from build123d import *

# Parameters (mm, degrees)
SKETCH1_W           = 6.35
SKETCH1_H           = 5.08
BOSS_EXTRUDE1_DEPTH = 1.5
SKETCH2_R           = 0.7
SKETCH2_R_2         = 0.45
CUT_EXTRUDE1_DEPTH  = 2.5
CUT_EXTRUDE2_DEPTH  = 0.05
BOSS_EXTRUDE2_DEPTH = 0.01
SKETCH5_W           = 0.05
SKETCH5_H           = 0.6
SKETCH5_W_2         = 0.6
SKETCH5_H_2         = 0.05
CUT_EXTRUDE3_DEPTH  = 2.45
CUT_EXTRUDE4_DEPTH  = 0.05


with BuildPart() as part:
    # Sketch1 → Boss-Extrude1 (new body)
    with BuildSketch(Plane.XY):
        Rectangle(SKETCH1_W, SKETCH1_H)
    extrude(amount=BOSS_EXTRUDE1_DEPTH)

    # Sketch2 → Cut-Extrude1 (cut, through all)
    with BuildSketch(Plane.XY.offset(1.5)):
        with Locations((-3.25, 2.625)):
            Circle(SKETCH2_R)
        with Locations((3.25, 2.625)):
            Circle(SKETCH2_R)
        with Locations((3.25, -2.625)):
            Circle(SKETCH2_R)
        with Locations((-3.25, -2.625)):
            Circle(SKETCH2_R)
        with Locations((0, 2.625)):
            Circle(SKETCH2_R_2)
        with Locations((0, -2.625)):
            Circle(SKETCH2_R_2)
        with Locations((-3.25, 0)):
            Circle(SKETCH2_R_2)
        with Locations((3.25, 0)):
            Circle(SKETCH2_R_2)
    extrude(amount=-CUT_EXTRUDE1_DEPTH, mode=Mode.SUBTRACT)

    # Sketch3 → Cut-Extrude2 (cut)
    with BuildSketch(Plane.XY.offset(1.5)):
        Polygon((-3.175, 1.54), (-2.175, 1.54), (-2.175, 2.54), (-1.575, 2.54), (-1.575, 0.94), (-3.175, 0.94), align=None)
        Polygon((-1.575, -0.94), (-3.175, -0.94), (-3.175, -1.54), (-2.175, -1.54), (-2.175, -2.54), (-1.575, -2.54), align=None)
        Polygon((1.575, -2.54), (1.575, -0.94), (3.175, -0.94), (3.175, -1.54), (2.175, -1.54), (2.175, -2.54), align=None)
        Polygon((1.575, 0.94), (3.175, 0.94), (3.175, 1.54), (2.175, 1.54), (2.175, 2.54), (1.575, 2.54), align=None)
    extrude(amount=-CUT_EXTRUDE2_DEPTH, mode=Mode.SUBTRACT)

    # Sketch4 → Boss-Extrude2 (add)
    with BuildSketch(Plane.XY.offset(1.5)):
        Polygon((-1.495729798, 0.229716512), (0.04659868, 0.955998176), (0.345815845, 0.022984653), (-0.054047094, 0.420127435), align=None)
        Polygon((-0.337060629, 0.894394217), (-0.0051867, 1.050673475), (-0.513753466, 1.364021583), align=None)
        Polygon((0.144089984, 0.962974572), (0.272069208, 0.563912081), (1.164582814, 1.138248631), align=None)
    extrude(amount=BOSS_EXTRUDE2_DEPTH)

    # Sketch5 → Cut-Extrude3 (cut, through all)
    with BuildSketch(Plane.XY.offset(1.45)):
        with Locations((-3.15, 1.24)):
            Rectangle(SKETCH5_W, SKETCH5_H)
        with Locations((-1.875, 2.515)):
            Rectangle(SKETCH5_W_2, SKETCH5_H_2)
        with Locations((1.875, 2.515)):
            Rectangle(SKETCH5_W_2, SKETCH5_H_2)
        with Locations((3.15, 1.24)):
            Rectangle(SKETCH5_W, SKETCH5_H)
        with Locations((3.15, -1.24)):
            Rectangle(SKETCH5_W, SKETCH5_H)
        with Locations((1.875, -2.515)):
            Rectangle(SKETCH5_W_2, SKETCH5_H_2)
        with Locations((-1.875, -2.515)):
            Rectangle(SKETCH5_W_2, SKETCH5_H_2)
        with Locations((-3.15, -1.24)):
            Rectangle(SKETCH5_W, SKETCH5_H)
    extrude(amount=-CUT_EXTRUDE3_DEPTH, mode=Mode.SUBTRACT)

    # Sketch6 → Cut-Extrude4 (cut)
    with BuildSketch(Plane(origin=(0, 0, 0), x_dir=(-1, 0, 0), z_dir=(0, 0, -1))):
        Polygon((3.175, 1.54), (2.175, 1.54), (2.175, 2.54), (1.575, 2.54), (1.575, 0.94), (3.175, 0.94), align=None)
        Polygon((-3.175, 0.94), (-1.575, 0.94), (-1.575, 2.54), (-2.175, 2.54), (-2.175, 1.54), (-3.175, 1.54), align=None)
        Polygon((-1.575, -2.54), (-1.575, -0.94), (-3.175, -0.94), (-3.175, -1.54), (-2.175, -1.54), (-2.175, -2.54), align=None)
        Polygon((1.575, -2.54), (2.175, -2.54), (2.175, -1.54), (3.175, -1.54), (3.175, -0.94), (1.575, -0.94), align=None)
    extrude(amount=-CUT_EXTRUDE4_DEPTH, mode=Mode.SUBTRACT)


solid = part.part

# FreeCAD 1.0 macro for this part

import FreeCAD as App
import Part
import Sketcher

V = App.Vector

doc = App.newDocument("Part")
body = doc.addObject("PartDesign::Body", "Body")

# Sketch on XY plane
sketch1 = body.newObject("Sketcher::SketchObject", "Sketch")
sketch1.AttachmentSupport = (doc.getObject("XY_Plane"), [""])
sketch1.MapMode = "FlatFace"
sketch1.addGeometry([
    Part.LineSegment(V(-3, 3, 0), V(-3, -3, 0)),
    Part.LineSegment(V(-3, -3, 0), V(3, -3, 0)),
    Part.LineSegment(V(3, -3, 0), V(3, 3, 0)),
    Part.LineSegment(V(3, 3, 0), V(-3, 3, 0)),
], False)
sketch1.addConstraint([
    Sketcher.Constraint("Coincident", 0, 2, 1, 1),
    Sketcher.Constraint("Coincident", 1, 2, 2, 1),
    Sketcher.Constraint("Coincident", 2, 2, 3, 1),
    Sketcher.Constraint("Coincident", 3, 2, 0, 1),
    Sketcher.Constraint("Vertical", 0),
    Sketcher.Constraint("Horizontal", 1),
    Sketcher.Constraint("Vertical", 2),
    Sketcher.Constraint("Horizontal", 3),
    Sketcher.Constraint("Symmetric", 0, 2, 2, 2, -1, 1),
    Sketcher.Constraint("DistanceX", 1, 1, 1, 2, 6.35),
    Sketcher.Constraint("DistanceY", 0, 2, 0, 1, 5.08),
])
pad1 = body.newObject("PartDesign::Pad", "Pad")
pad1.Profile = sketch1
pad1.Length = 1.5

# Sketch on XY plane
sketch2 = body.newObject("Sketcher::SketchObject", "Sketch001")
sketch2.AttachmentSupport = (doc.getObject("XY_Plane"), [""])
sketch2.MapMode = "FlatFace"
sketch2.AttachmentOffset = App.Placement(V(0, 0, 1.5), App.Rotation())
sketch2.addGeometry([
    Part.Circle(V(-3.25, 2.62, 0), V(0, 0, 1), 0.7),  # 0
    Part.Circle(V(3.25, 2.62, 0), V(0, 0, 1), 0.7),  # 1
    Part.Circle(V(3.25, -2.62, 0), V(0, 0, 1), 0.7),  # 2
    Part.Circle(V(-3.25, -2.62, 0), V(0, 0, 1), 0.7),  # 3
    Part.Circle(V(0, 2.62, 0), V(0, 0, 1), 0.45),  # 4
    Part.Circle(V(0, -2.62, 0), V(0, 0, 1), 0.45),  # 5
    Part.Circle(V(-3.25, 0, 0), V(0, 0, 1), 0.45),  # 6
    Part.Circle(V(3.25, 0, 0), V(0, 0, 1), 0.45),  # 7
], False)
sketch2.addConstraint([
    Sketcher.Constraint("Equal", 0, 1),
    Sketcher.Constraint("Equal", 1, 2),
    Sketcher.Constraint("Equal", 2, 3),
    Sketcher.Constraint("Equal", 4, 5),
    Sketcher.Constraint("Equal", 5, 6),
    Sketcher.Constraint("Equal", 6, 7),
    Sketcher.Constraint("Symmetric", 0, 3, 2, 3, -1, 1),
    Sketcher.Constraint("Symmetric", 1, 3, 3, 3, -1, 1),
    Sketcher.Constraint("Symmetric", 4, 3, 5, 3, -1, 1),
    Sketcher.Constraint("Symmetric", 6, 3, 7, 3, -1, 1),
    Sketcher.Constraint("Symmetric", 0, 3, 1, 3, -2),
    Sketcher.Constraint("PointOnObject", 4, 3, -2),
    Sketcher.Constraint("PointOnObject", 6, 3, -1),
    Sketcher.Constraint("Horizontal", 1, 3, 4, 3),
    Sketcher.Constraint("Vertical", 3, 3, 6, 3),
    Sketcher.Constraint("Diameter", 0, 1.4),
    Sketcher.Constraint("Diameter", 4, 0.9),
    Sketcher.Constraint("DistanceX", 0, 3, 1, 3, 6.5),
    Sketcher.Constraint("DistanceY", 2, 3, 1, 3, 5.25),
])
pocket1 = body.newObject("PartDesign::Pocket", "Pocket")
pocket1.Profile = sketch2
pocket1.Type = "ThroughAll"

# Sketch on XY plane
sketch3 = body.newObject("Sketcher::SketchObject", "Sketch002")
sketch3.AttachmentSupport = (doc.getObject("XY_Plane"), [""])
sketch3.MapMode = "FlatFace"
sketch3.AttachmentOffset = App.Placement(V(0, 0, 1.5), App.Rotation())
sketch3.addGeometry([
    Part.LineSegment(V(-2.2, 1.5, 0), V(-3.2, 1.5, 0)),  # 0
    Part.LineSegment(V(-3.2, 1.5, 0), V(-3.2, 0.9, 0)),  # 1
    Part.LineSegment(V(-3.2, 0.9, 0), V(-1.6, 0.9, 0)),  # 2
    Part.LineSegment(V(-1.6, 0.9, 0), V(-1.6, 2.5, 0)),  # 3
    Part.LineSegment(V(-1.6, 2.5, 0), V(-2.2, 2.5, 0)),  # 4
    Part.LineSegment(V(-2.2, 2.5, 0), V(-2.2, 1.5, 0)),  # 5
    Part.LineSegment(V(-1.6, -0.9, 0), V(-3.2, -0.9, 0)),  # 6
    Part.LineSegment(V(-3.2, -0.9, 0), V(-3.2, -1.5, 0)),  # 7
    Part.LineSegment(V(-3.2, -1.5, 0), V(-2.2, -1.5, 0)),  # 8
    Part.LineSegment(V(-2.2, -1.5, 0), V(-2.2, -2.5, 0)),  # 9
    Part.LineSegment(V(-2.2, -2.5, 0), V(-1.6, -2.5, 0)),  # 10
    Part.LineSegment(V(-1.6, -2.5, 0), V(-1.6, -0.9, 0)),  # 11
    Part.LineSegment(V(1.6, -0.9, 0), V(1.6, -2.5, 0)),  # 12
    Part.LineSegment(V(1.6, -2.5, 0), V(2.2, -2.5, 0)),  # 13
    Part.LineSegment(V(2.2, -2.5, 0), V(2.2, -1.5, 0)),  # 14
    Part.LineSegment(V(2.2, -1.5, 0), V(3.2, -1.5, 0)),  # 15
    Part.LineSegment(V(3.2, -1.5, 0), V(3.2, -0.9, 0)),  # 16
    Part.LineSegment(V(3.2, -0.9, 0), V(1.6, -0.9, 0)),  # 17
    Part.LineSegment(V(1.6, 0.9, 0), V(3.2, 0.9, 0)),  # 18
    Part.LineSegment(V(3.2, 0.9, 0), V(3.2, 1.5, 0)),  # 19
    Part.LineSegment(V(3.2, 1.5, 0), V(2.2, 1.5, 0)),  # 20
    Part.LineSegment(V(2.2, 1.5, 0), V(2.2, 2.5, 0)),  # 21
    Part.LineSegment(V(2.2, 2.5, 0), V(1.6, 2.5, 0)),  # 22
    Part.LineSegment(V(1.6, 2.5, 0), V(1.6, 0.9, 0)),  # 23
], False)
sketch3.addConstraint([
    Sketcher.Constraint("Coincident", 0, 2, 1, 1),
    Sketcher.Constraint("Coincident", 1, 2, 2, 1),
    Sketcher.Constraint("Coincident", 2, 2, 3, 1),
    Sketcher.Constraint("Coincident", 3, 2, 4, 1),
    Sketcher.Constraint("Coincident", 4, 2, 5, 1),
    Sketcher.Constraint("Coincident", 5, 2, 0, 1),
    Sketcher.Constraint("Coincident", 6, 2, 7, 1),
    Sketcher.Constraint("Coincident", 7, 2, 8, 1),
    Sketcher.Constraint("Coincident", 8, 2, 9, 1),
    Sketcher.Constraint("Coincident", 9, 2, 10, 1),
    Sketcher.Constraint("Coincident", 10, 2, 11, 1),
    Sketcher.Constraint("Coincident", 11, 2, 6, 1),
    Sketcher.Constraint("Coincident", 12, 2, 13, 1),
    Sketcher.Constraint("Coincident", 13, 2, 14, 1),
    Sketcher.Constraint("Coincident", 14, 2, 15, 1),
    Sketcher.Constraint("Coincident", 15, 2, 16, 1),
    Sketcher.Constraint("Coincident", 16, 2, 17, 1),
    Sketcher.Constraint("Coincident", 17, 2, 12, 1),
    Sketcher.Constraint("Coincident", 18, 2, 19, 1),
    Sketcher.Constraint("Coincident", 19, 2, 20, 1),
    Sketcher.Constraint("Coincident", 20, 2, 21, 1),
    Sketcher.Constraint("Coincident", 21, 2, 22, 1),
    Sketcher.Constraint("Coincident", 22, 2, 23, 1),
    Sketcher.Constraint("Coincident", 23, 2, 18, 1),
    Sketcher.Constraint("Horizontal", 0),
    Sketcher.Constraint("Vertical", 1),
    Sketcher.Constraint("Horizontal", 2),
    Sketcher.Constraint("Vertical", 3),
    Sketcher.Constraint("Horizontal", 4),
    Sketcher.Constraint("Vertical", 5),
    Sketcher.Constraint("Horizontal", 6),
    Sketcher.Constraint("Vertical", 7),
    Sketcher.Constraint("Horizontal", 8),
    Sketcher.Constraint("Vertical", 9),
    Sketcher.Constraint("Horizontal", 10),
    Sketcher.Constraint("Vertical", 11),
    Sketcher.Constraint("Vertical", 12),
    Sketcher.Constraint("Horizontal", 13),
    Sketcher.Constraint("Vertical", 14),
    Sketcher.Constraint("Horizontal", 15),
    Sketcher.Constraint("Vertical", 16),
    Sketcher.Constraint("Horizontal", 17),
    Sketcher.Constraint("Horizontal", 18),
    Sketcher.Constraint("Vertical", 19),
    Sketcher.Constraint("Horizontal", 20),
    Sketcher.Constraint("Vertical", 21),
    Sketcher.Constraint("Horizontal", 22),
    Sketcher.Constraint("Vertical", 23),
    Sketcher.Constraint("Symmetric", 3, 2, 12, 2, -1, 1),
    Sketcher.Constraint("Symmetric", 5, 2, 14, 2, -1, 1),
    Sketcher.Constraint("Symmetric", 1, 2, 16, 2, -1, 1),
    Sketcher.Constraint("Symmetric", 6, 2, 18, 2, -1, 1),
    Sketcher.Constraint("Symmetric", 8, 2, 20, 2, -1, 1),
    Sketcher.Constraint("Symmetric", 10, 2, 22, 2, -1, 1),
    Sketcher.Constraint("Symmetric", 10, 2, 12, 2, -2),
    Sketcher.Constraint("Symmetric", 8, 2, 14, 2, -2),
    Sketcher.Constraint("Symmetric", 6, 2, 16, 2, -2),
    Sketcher.Constraint("Equal", 22, 1),
    Sketcher.Constraint("Equal", 18, 3),
    Sketcher.Constraint("DistanceX", 0, 2, 0, 1, 1.0),
    Sketcher.Constraint("DistanceX", 2, 1, 2, 2, 1.6),
    Sketcher.Constraint("DistanceY", -1, 1, 0, 2, 1.54),
    Sketcher.Constraint("DistanceX", 10, 2, 12, 2, 3.15),
])
pocket2 = body.newObject("PartDesign::Pocket", "Pocket001")
pocket2.Profile = sketch3
pocket2.Length = 0.05

# Sketch on XY plane
sketch4 = body.newObject("Sketcher::SketchObject", "Sketch003")
sketch4.AttachmentSupport = (doc.getObject("XY_Plane"), [""])
sketch4.MapMode = "FlatFace"
sketch4.AttachmentOffset = App.Placement(V(0, 0, 1.5), App.Rotation())
sketch4.addGeometry([
    Part.LineSegment(V(0.05, 0.96, 0), V(-1.5, 0.23, 0)),  # 0
    Part.LineSegment(V(-1.5, 0.23, 0), V(-0.05, 0.42, 0)),  # 1
    Part.LineSegment(V(-0.05, 0.42, 0), V(0.35, 0.02, 0)),  # 2
    Part.LineSegment(V(0.35, 0.02, 0), V(0.05, 0.96, 0)),  # 3
    Part.LineSegment(V(-0.34, 0.89, 0), V(-0.01, 1.05, 0)),  # 4
    Part.LineSegment(V(-0.01, 1.05, 0), V(-0.51, 1.36, 0)),  # 5
    Part.LineSegment(V(-0.51, 1.36, 0), V(-0.34, 0.89, 0)),  # 6
    Part.LineSegment(V(0.14, 0.96, 0), V(0.27, 0.56, 0)),  # 7
    Part.LineSegment(V(0.27, 0.56, 0), V(1.16, 1.14, 0)),  # 8
    Part.LineSegment(V(1.16, 1.14, 0), V(0.14, 0.96, 0)),  # 9
], False)
sketch4.addConstraint([
    Sketcher.Constraint("Coincident", 0, 2, 1, 1),
    Sketcher.Constraint("Coincident", 1, 2, 2, 1),
    Sketcher.Constraint("Coincident", 2, 2, 3, 1),
    Sketcher.Constraint("Coincident", 3, 2, 0, 1),
    Sketcher.Constraint("Coincident", 4, 2, 5, 1),
    Sketcher.Constraint("Coincident", 5, 2, 6, 1),
    Sketcher.Constraint("Coincident", 6, 2, 4, 1),
    Sketcher.Constraint("Coincident", 7, 2, 8, 1),
    Sketcher.Constraint("Coincident", 8, 2, 9, 1),
    Sketcher.Constraint("Coincident", 9, 2, 7, 1),
    Sketcher.Constraint("Parallel", 0, 4),
    Sketcher.Constraint("Parallel", 3, 7),
    Sketcher.Constraint("DistanceY", -1, 1, 3, 2, 0.955998),
    Sketcher.Constraint("DistanceX", -1, 1, 3, 2, 0.046599),
    Sketcher.Constraint("DistanceY", 9, 2, 4, 2, 0.087699),
    Sketcher.Constraint("Distance", 2, 0.563571),
    Sketcher.Constraint("Distance", 3, 0.979819),
    Sketcher.Constraint("Distance", 4, 0.366829),
    Sketcher.Constraint("Distance", 5, 0.59735),
    Sketcher.Constraint("Distance", 7, 0.419082),
    Sketcher.Constraint("Distance", 8, 1.06134),
    Sketcher.Constraint("DistanceX", 0, 2, -1, 1, 1.49573),
    Sketcher.Constraint("DistanceY", -1, 1, 5, 2, 1.364022),
    Sketcher.Constraint("DistanceX", 6, 2, -1, 1, 0.337061),
    Sketcher.Constraint("DistanceX", -1, 1, 7, 2, 0.272069),
    Sketcher.Constraint("DistanceY", -1, 1, 8, 2, 1.138249),
    Sketcher.Constraint("DistanceX", -1, 1, 9, 2, 0.14409),
    Sketcher.Constraint("DistanceY", 0, 2, 1, 2, 0.190411),
    Sketcher.Constraint("DistanceY", 2, 2, 0, 2, 0.206732),
    Sketcher.Constraint("DistanceY", 2, 2, 4, 2, 1.027689),
])
pad2 = body.newObject("PartDesign::Pad", "Pad001")
pad2.Profile = sketch4
pad2.Length = 0.01

# Sketch on XY plane
sketch5 = body.newObject("Sketcher::SketchObject", "Sketch004")
sketch5.AttachmentSupport = (doc.getObject("XY_Plane"), [""])
sketch5.MapMode = "FlatFace"
sketch5.AttachmentOffset = App.Placement(V(0, 0, 1.45), App.Rotation())
sketch5.addGeometry([
    Part.LineSegment(V(-3.175, 1.54, 0), V(-3.175, 0.94, 0)),  # 0
    Part.LineSegment(V(-3.175, 0.94, 0), V(-3.125, 0.94, 0)),  # 1
    Part.LineSegment(V(-3.125, 0.94, 0), V(-3.125, 1.54, 0)),  # 2
    Part.LineSegment(V(-3.125, 1.54, 0), V(-3.175, 1.54, 0)),  # 3
    Part.LineSegment(V(-2.175, 2.54, 0), V(-2.175, 2.49, 0)),  # 4
    Part.LineSegment(V(-2.175, 2.49, 0), V(-1.575, 2.49, 0)),  # 5
    Part.LineSegment(V(-1.575, 2.49, 0), V(-1.575, 2.54, 0)),  # 6
    Part.LineSegment(V(-1.575, 2.54, 0), V(-2.175, 2.54, 0)),  # 7
    Part.LineSegment(V(1.575, 2.54, 0), V(1.575, 2.49, 0)),  # 8
    Part.LineSegment(V(1.575, 2.49, 0), V(2.175, 2.49, 0)),  # 9
    Part.LineSegment(V(2.175, 2.49, 0), V(2.175, 2.54, 0)),  # 10
    Part.LineSegment(V(2.175, 2.54, 0), V(1.575, 2.54, 0)),  # 11
    Part.LineSegment(V(3.125, 1.54, 0), V(3.125, 0.94, 0)),  # 12
    Part.LineSegment(V(3.125, 0.94, 0), V(3.175, 0.94, 0)),  # 13
    Part.LineSegment(V(3.175, 0.94, 0), V(3.175, 1.54, 0)),  # 14
    Part.LineSegment(V(3.175, 1.54, 0), V(3.125, 1.54, 0)),  # 15
    Part.LineSegment(V(3.125, -0.94, 0), V(3.125, -1.54, 0)),  # 16
    Part.LineSegment(V(3.125, -1.54, 0), V(3.175, -1.54, 0)),  # 17
    Part.LineSegment(V(3.175, -1.54, 0), V(3.175, -0.94, 0)),  # 18
    Part.LineSegment(V(3.175, -0.94, 0), V(3.125, -0.94, 0)),  # 19
    Part.LineSegment(V(1.575, -2.49, 0), V(1.575, -2.54, 0)),  # 20
    Part.LineSegment(V(1.575, -2.54, 0), V(2.175, -2.54, 0)),  # 21
    Part.LineSegment(V(2.175, -2.54, 0), V(2.175, -2.49, 0)),  # 22
    Part.LineSegment(V(2.175, -2.49, 0), V(1.575, -2.49, 0)),  # 23
    Part.LineSegment(V(-2.175, -2.49, 0), V(-2.175, -2.54, 0)),  # 24
    Part.LineSegment(V(-2.175, -2.54, 0), V(-1.575, -2.54, 0)),  # 25
    Part.LineSegment(V(-1.575, -2.54, 0), V(-1.575, -2.49, 0)),  # 26
    Part.LineSegment(V(-1.575, -2.49, 0), V(-2.175, -2.49, 0)),  # 27
    Part.LineSegment(V(-3.175, -0.94, 0), V(-3.175, -1.54, 0)),  # 28
    Part.LineSegment(V(-3.175, -1.54, 0), V(-3.125, -1.54, 0)),  # 29
    Part.LineSegment(V(-3.125, -1.54, 0), V(-3.125, -0.94, 0)),  # 30
    Part.LineSegment(V(-3.125, -0.94, 0), V(-3.175, -0.94, 0)),  # 31
], False)
sketch5.addConstraint([
    Sketcher.Constraint("Coincident", 0, 2, 1, 1),
    Sketcher.Constraint("Coincident", 1, 2, 2, 1),
    Sketcher.Constraint("Coincident", 2, 2, 3, 1),
    Sketcher.Constraint("Coincident", 3, 2, 0, 1),
    Sketcher.Constraint("Coincident", 4, 2, 5, 1),
    Sketcher.Constraint("Coincident", 5, 2, 6, 1),
    Sketcher.Constraint("Coincident", 6, 2, 7, 1),
    Sketcher.Constraint("Coincident", 7, 2, 4, 1),
    Sketcher.Constraint("Coincident", 8, 2, 9, 1),
    Sketcher.Constraint("Coincident", 9, 2, 10, 1),
    Sketcher.Constraint("Coincident", 10, 2, 11, 1),
    Sketcher.Constraint("Coincident", 11, 2, 8, 1),
    Sketcher.Constraint("Coincident", 12, 2, 13, 1),
    Sketcher.Constraint("Coincident", 13, 2, 14, 1),
    Sketcher.Constraint("Coincident", 14, 2, 15, 1),
    Sketcher.Constraint("Coincident", 15, 2, 12, 1),
    Sketcher.Constraint("Coincident", 16, 2, 17, 1),
    Sketcher.Constraint("Coincident", 17, 2, 18, 1),
    Sketcher.Constraint("Coincident", 18, 2, 19, 1),
    Sketcher.Constraint("Coincident", 19, 2, 16, 1),
    Sketcher.Constraint("Coincident", 20, 2, 21, 1),
    Sketcher.Constraint("Coincident", 21, 2, 22, 1),
    Sketcher.Constraint("Coincident", 22, 2, 23, 1),
    Sketcher.Constraint("Coincident", 23, 2, 20, 1),
    Sketcher.Constraint("Coincident", 24, 2, 25, 1),
    Sketcher.Constraint("Coincident", 25, 2, 26, 1),
    Sketcher.Constraint("Coincident", 26, 2, 27, 1),
    Sketcher.Constraint("Coincident", 27, 2, 24, 1),
    Sketcher.Constraint("Coincident", 28, 2, 29, 1),
    Sketcher.Constraint("Coincident", 29, 2, 30, 1),
    Sketcher.Constraint("Coincident", 30, 2, 31, 1),
    Sketcher.Constraint("Coincident", 31, 2, 28, 1),
    Sketcher.Constraint("Vertical", 0),
    Sketcher.Constraint("Horizontal", 1),
    Sketcher.Constraint("Vertical", 2),
    Sketcher.Constraint("Horizontal", 3),
    Sketcher.Constraint("Vertical", 4),
    Sketcher.Constraint("Horizontal", 5),
    Sketcher.Constraint("Vertical", 6),
    Sketcher.Constraint("Horizontal", 7),
    Sketcher.Constraint("Vertical", 8),
    Sketcher.Constraint("Horizontal", 9),
    Sketcher.Constraint("Vertical", 10),
    Sketcher.Constraint("Horizontal", 11),
    Sketcher.Constraint("Vertical", 12),
    Sketcher.Constraint("Horizontal", 13),
    Sketcher.Constraint("Vertical", 14),
    Sketcher.Constraint("Horizontal", 15),
    Sketcher.Constraint("Vertical", 16),
    Sketcher.Constraint("Horizontal", 17),
    Sketcher.Constraint("Vertical", 18),
    Sketcher.Constraint("Horizontal", 19),
    Sketcher.Constraint("Vertical", 20),
    Sketcher.Constraint("Horizontal", 21),
    Sketcher.Constraint("Vertical", 22),
    Sketcher.Constraint("Horizontal", 23),
    Sketcher.Constraint("Vertical", 24),
    Sketcher.Constraint("Horizontal", 25),
    Sketcher.Constraint("Vertical", 26),
    Sketcher.Constraint("Horizontal", 27),
    Sketcher.Constraint("Vertical", 28),
    Sketcher.Constraint("Horizontal", 29),
    Sketcher.Constraint("Vertical", 30),
    Sketcher.Constraint("Horizontal", 31),
    Sketcher.Constraint("Symmetric", 2, 2, 16, 2, -1, 1),
    Sketcher.Constraint("Symmetric", 0, 2, 18, 2, -1, 1),
    Sketcher.Constraint("Symmetric", 6, 2, 20, 2, -1, 1),
    Sketcher.Constraint("Symmetric", 4, 2, 22, 2, -1, 1),
    Sketcher.Constraint("Symmetric", 10, 2, 24, 2, -1, 1),
    Sketcher.Constraint("Symmetric", 8, 2, 26, 2, -1, 1),
    Sketcher.Constraint("Symmetric", 14, 2, 28, 2, -1, 1),
    Sketcher.Constraint("Symmetric", 12, 2, 30, 2, -1, 1),
    Sketcher.Constraint("Symmetric", 5, 2, 8, 2, -2),
    Sketcher.Constraint("Symmetric", 7, 2, 10, 2, -2),
    Sketcher.Constraint("Symmetric", 1, 2, 12, 2, -2),
    Sketcher.Constraint("Symmetric", 3, 2, 14, 2, -2),
    Sketcher.Constraint("Equal", 27, 0),
    Sketcher.Constraint("Equal", 31, 4),
    Sketcher.Constraint("DistanceX", 5, 1, 5, 2, 0.6),
    Sketcher.Constraint("DistanceX", 3, 2, 4, 2, 1.0),
    Sketcher.Constraint("DistanceY", 2, 2, 6, 2, 1.0),
    Sketcher.Constraint("DistanceX", 1, 1, 1, 2, 0.05),
    Sketcher.Constraint("DistanceX", 2, 2, 8, 2, 4.7),
    Sketcher.Constraint("DistanceY", -1, 1, 0, 2, 0.94),
])
pocket3 = body.newObject("PartDesign::Pocket", "Pocket002")
pocket3.Profile = sketch5
pocket3.Type = "ThroughAll"

# Sketch on XY plane
sketch6 = body.newObject("Sketcher::SketchObject", "Sketch005")
sketch6.AttachmentSupport = (doc.getObject("XY_Plane"), [""])
sketch6.MapMode = "FlatFace"
sketch6.addGeometry([
    Part.LineSegment(V(-3.2, 1.5, 0), V(-2.2, 1.5, 0)),  # 0
    Part.LineSegment(V(-2.2, 1.5, 0), V(-2.2, 2.5, 0)),  # 1
    Part.LineSegment(V(-2.2, 2.5, 0), V(-1.6, 2.5, 0)),  # 2
    Part.LineSegment(V(-1.6, 2.5, 0), V(-1.6, 0.9, 0)),  # 3
    Part.LineSegment(V(-1.6, 0.9, 0), V(-3.2, 0.9, 0)),  # 4
    Part.LineSegment(V(-3.2, 0.9, 0), V(-3.2, 1.5, 0)),  # 5
    Part.LineSegment(V(3.2, 0.9, 0), V(1.6, 0.9, 0)),  # 6
    Part.LineSegment(V(1.6, 0.9, 0), V(1.6, 2.5, 0)),  # 7
    Part.LineSegment(V(1.6, 2.5, 0), V(2.2, 2.5, 0)),  # 8
    Part.LineSegment(V(2.2, 2.5, 0), V(2.2, 1.5, 0)),  # 9
    Part.LineSegment(V(2.2, 1.5, 0), V(3.2, 1.5, 0)),  # 10
    Part.LineSegment(V(3.2, 1.5, 0), V(3.2, 0.9, 0)),  # 11
    Part.LineSegment(V(1.6, -2.5, 0), V(1.6, -0.9, 0)),  # 12
    Part.LineSegment(V(1.6, -0.9, 0), V(3.2, -0.9, 0)),  # 13
    Part.LineSegment(V(3.2, -0.9, 0), V(3.2, -1.5, 0)),  # 14
    Part.LineSegment(V(3.2, -1.5, 0), V(2.2, -1.5, 0)),  # 15
    Part.LineSegment(V(2.2, -1.5, 0), V(2.2, -2.5, 0)),  # 16
    Part.LineSegment(V(2.2, -2.5, 0), V(1.6, -2.5, 0)),  # 17
    Part.LineSegment(V(-1.6, -2.5, 0), V(-2.2, -2.5, 0)),  # 18
    Part.LineSegment(V(-2.2, -2.5, 0), V(-2.2, -1.5, 0)),  # 19
    Part.LineSegment(V(-2.2, -1.5, 0), V(-3.2, -1.5, 0)),  # 20
    Part.LineSegment(V(-3.2, -1.5, 0), V(-3.2, -0.9, 0)),  # 21
    Part.LineSegment(V(-3.2, -0.9, 0), V(-1.6, -0.9, 0)),  # 22
    Part.LineSegment(V(-1.6, -0.9, 0), V(-1.6, -2.5, 0)),  # 23
], False)
sketch6.addConstraint([
    Sketcher.Constraint("Coincident", 0, 2, 1, 1),
    Sketcher.Constraint("Coincident", 1, 2, 2, 1),
    Sketcher.Constraint("Coincident", 2, 2, 3, 1),
    Sketcher.Constraint("Coincident", 3, 2, 4, 1),
    Sketcher.Constraint("Coincident", 4, 2, 5, 1),
    Sketcher.Constraint("Coincident", 5, 2, 0, 1),
    Sketcher.Constraint("Coincident", 6, 2, 7, 1),
    Sketcher.Constraint("Coincident", 7, 2, 8, 1),
    Sketcher.Constraint("Coincident", 8, 2, 9, 1),
    Sketcher.Constraint("Coincident", 9, 2, 10, 1),
    Sketcher.Constraint("Coincident", 10, 2, 11, 1),
    Sketcher.Constraint("Coincident", 11, 2, 6, 1),
    Sketcher.Constraint("Coincident", 12, 2, 13, 1),
    Sketcher.Constraint("Coincident", 13, 2, 14, 1),
    Sketcher.Constraint("Coincident", 14, 2, 15, 1),
    Sketcher.Constraint("Coincident", 15, 2, 16, 1),
    Sketcher.Constraint("Coincident", 16, 2, 17, 1),
    Sketcher.Constraint("Coincident", 17, 2, 12, 1),
    Sketcher.Constraint("Coincident", 18, 2, 19, 1),
    Sketcher.Constraint("Coincident", 19, 2, 20, 1),
    Sketcher.Constraint("Coincident", 20, 2, 21, 1),
    Sketcher.Constraint("Coincident", 21, 2, 22, 1),
    Sketcher.Constraint("Coincident", 22, 2, 23, 1),
    Sketcher.Constraint("Coincident", 23, 2, 18, 1),
    Sketcher.Constraint("Horizontal", 0),
    Sketcher.Constraint("Vertical", 1),
    Sketcher.Constraint("Horizontal", 2),
    Sketcher.Constraint("Vertical", 3),
    Sketcher.Constraint("Horizontal", 4),
    Sketcher.Constraint("Vertical", 5),
    Sketcher.Constraint("Horizontal", 6),
    Sketcher.Constraint("Vertical", 7),
    Sketcher.Constraint("Horizontal", 8),
    Sketcher.Constraint("Vertical", 9),
    Sketcher.Constraint("Horizontal", 10),
    Sketcher.Constraint("Vertical", 11),
    Sketcher.Constraint("Vertical", 12),
    Sketcher.Constraint("Horizontal", 13),
    Sketcher.Constraint("Vertical", 14),
    Sketcher.Constraint("Horizontal", 15),
    Sketcher.Constraint("Vertical", 16),
    Sketcher.Constraint("Horizontal", 17),
    Sketcher.Constraint("Horizontal", 18),
    Sketcher.Constraint("Vertical", 19),
    Sketcher.Constraint("Horizontal", 20),
    Sketcher.Constraint("Vertical", 21),
    Sketcher.Constraint("Horizontal", 22),
    Sketcher.Constraint("Vertical", 23),
    Sketcher.Constraint("Symmetric", 3, 2, 12, 2, -1, 1),
    Sketcher.Constraint("Symmetric", 5, 2, 14, 2, -1, 1),
    Sketcher.Constraint("Symmetric", 1, 2, 16, 2, -1, 1),
    Sketcher.Constraint("Symmetric", 8, 2, 18, 2, -1, 1),
    Sketcher.Constraint("Symmetric", 10, 2, 20, 2, -1, 1),
    Sketcher.Constraint("Symmetric", 6, 2, 22, 2, -1, 1),
    Sketcher.Constraint("Symmetric", 3, 2, 6, 2, -2),
    Sketcher.Constraint("Symmetric", 1, 2, 8, 2, -2),
    Sketcher.Constraint("Symmetric", 5, 2, 10, 2, -2),
    Sketcher.Constraint("Equal", 20, 1),
    Sketcher.Constraint("Equal", 22, 3),
    Sketcher.Constraint("DistanceX", 0, 1, 0, 2, 1.0),
    Sketcher.Constraint("DistanceX", 2, 1, 2, 2, 0.6),
    Sketcher.Constraint("DistanceY", -1, 1, 0, 2, 1.54),
    Sketcher.Constraint("DistanceX", 3, 2, 6, 2, 3.15),
])
pocket4 = body.newObject("PartDesign::Pocket", "Pocket003")
pocket4.Profile = sketch6
pocket4.Length = 0.05
pocket4.Reversed = True

doc.recompute()
